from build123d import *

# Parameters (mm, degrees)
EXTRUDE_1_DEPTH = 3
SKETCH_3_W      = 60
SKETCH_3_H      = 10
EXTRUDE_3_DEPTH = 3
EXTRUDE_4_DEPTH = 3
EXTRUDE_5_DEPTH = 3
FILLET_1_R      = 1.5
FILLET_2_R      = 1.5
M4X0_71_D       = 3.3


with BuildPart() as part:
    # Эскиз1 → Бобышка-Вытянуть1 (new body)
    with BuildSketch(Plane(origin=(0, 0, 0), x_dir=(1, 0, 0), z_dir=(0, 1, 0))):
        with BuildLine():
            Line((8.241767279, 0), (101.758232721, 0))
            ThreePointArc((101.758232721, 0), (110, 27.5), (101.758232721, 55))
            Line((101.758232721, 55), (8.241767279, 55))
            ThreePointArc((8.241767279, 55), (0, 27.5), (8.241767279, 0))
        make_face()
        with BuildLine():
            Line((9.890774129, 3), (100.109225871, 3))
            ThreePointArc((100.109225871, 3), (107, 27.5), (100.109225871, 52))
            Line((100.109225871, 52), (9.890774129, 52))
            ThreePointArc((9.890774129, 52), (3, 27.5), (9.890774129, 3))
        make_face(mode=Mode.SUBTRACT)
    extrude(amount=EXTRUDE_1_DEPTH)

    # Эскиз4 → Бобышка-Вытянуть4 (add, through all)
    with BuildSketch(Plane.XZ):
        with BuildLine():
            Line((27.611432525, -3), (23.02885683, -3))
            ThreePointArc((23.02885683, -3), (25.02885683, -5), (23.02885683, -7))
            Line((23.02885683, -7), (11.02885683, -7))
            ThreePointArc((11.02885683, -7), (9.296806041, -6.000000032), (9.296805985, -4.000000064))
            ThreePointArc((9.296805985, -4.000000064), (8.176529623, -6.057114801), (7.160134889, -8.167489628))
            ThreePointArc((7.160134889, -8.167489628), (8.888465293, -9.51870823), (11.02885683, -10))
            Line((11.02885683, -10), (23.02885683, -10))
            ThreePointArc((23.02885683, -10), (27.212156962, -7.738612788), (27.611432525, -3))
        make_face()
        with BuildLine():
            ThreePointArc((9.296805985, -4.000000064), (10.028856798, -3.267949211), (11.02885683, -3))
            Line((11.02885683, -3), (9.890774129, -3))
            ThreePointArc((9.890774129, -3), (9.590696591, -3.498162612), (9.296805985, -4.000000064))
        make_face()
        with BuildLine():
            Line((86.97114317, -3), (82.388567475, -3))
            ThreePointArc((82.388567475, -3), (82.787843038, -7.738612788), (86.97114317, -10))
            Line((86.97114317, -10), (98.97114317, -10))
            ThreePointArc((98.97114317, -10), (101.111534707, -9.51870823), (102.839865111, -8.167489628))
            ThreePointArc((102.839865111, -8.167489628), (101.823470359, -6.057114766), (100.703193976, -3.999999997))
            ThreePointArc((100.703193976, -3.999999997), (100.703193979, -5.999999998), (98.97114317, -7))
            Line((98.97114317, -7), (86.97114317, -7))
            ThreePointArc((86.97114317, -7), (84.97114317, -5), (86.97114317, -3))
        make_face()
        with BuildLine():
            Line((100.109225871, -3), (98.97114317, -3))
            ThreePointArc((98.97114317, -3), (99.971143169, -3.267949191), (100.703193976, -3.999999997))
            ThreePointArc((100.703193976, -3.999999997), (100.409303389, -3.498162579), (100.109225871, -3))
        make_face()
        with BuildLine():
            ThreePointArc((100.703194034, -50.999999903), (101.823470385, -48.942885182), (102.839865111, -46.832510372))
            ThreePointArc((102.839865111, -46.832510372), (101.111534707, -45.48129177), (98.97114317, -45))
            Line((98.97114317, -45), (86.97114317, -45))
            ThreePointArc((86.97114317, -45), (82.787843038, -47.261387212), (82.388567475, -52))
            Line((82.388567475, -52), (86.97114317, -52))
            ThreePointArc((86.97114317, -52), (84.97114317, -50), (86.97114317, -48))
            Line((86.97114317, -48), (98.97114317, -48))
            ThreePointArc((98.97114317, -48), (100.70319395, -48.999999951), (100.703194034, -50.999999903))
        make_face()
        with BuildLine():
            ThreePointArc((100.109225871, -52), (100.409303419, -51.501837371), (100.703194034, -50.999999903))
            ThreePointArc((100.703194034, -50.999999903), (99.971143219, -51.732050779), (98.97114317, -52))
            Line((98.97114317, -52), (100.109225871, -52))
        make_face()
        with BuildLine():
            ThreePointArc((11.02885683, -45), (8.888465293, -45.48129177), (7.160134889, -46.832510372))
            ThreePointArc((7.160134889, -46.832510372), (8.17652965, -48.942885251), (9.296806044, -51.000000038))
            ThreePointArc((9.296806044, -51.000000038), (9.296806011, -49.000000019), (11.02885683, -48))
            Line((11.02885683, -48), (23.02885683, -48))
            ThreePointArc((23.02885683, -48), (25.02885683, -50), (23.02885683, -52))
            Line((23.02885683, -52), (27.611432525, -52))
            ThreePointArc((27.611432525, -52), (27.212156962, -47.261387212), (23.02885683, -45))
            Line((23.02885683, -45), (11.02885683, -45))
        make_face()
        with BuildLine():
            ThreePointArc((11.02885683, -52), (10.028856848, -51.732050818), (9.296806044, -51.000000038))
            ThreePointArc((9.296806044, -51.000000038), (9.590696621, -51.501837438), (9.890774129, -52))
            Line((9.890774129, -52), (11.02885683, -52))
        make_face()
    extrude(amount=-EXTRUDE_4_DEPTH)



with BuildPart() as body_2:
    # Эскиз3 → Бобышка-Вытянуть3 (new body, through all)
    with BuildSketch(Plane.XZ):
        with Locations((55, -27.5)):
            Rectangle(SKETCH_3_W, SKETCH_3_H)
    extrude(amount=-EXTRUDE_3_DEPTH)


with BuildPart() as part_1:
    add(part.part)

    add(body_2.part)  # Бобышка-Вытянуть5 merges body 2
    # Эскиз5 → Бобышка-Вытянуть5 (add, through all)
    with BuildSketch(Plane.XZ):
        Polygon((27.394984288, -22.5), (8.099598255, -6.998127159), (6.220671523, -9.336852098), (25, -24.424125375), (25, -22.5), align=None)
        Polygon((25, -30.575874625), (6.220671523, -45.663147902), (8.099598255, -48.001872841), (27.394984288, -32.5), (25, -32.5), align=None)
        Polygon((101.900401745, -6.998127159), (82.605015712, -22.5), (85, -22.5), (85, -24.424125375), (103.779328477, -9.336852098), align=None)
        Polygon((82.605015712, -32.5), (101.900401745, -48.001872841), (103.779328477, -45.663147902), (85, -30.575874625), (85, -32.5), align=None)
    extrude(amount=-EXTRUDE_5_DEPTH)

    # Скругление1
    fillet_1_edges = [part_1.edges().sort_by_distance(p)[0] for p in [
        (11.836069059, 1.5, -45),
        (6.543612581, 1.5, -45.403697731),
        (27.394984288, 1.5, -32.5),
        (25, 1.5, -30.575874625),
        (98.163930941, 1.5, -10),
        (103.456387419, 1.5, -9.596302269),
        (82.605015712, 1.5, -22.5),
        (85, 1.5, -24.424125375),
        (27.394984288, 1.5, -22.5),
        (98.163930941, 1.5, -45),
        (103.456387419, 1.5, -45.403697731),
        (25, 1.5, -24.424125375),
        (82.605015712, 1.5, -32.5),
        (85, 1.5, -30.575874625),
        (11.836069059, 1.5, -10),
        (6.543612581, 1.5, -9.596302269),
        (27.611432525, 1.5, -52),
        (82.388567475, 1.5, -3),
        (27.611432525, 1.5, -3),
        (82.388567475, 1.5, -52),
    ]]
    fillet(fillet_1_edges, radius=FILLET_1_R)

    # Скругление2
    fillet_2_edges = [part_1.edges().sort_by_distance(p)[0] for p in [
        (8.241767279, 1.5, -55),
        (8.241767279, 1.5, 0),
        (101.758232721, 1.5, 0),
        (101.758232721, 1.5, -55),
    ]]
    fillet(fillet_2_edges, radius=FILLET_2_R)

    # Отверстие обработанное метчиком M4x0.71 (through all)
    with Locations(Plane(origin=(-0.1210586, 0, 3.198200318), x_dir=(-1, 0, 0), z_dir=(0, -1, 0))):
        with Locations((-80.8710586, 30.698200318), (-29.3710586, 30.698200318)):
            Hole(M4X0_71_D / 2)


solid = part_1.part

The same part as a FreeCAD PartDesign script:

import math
import FreeCAD as App
import Part
import Sketcher

V = App.Vector


def edges_at(feature, points):
    """Names of the edges that pass closest to the given points."""
    edges = feature.Shape.Edges
    near = lambda p: min(range(len(edges)), key=lambda i: edges[i].distToShape(Part.Vertex(*p))[0])
    return sorted({f"Edge{near(p) + 1}" for p in points})

doc = App.newDocument("Part")
body = doc.addObject("PartDesign::Body", "Body")

sketch1 = body.newObject("Sketcher::SketchObject", "Sketch")
sketch1.AttachmentSupport = (doc.getObject("XZ_Plane"), [""])
sketch1.MapMode = "FlatFace"
sketch1.addGeometry([
    Part.LineSegment(V(8, 0, 0), V(102, 0, 0)),
    Part.ArcOfCircle(Part.Circle(V(60, -28, 0), V(0, 0, 1), 50), math.radians(-33), math.radians(33)),
    Part.LineSegment(V(102, -55, 0), V(8, -55, 0)),
    Part.ArcOfCircle(Part.Circle(V(50, -28, 0), V(0, 0, 1), 50), math.radians(147), math.radians(213)),
    Part.LineSegment(V(100, -3, 0), V(10, -3, 0)),
    Part.ArcOfCircle(Part.Circle(V(50, -28, 0), V(0, 0, 1), 47), math.radians(149), math.radians(211)),
    Part.LineSegment(V(10, -52, 0), V(100, -52, 0)),
    Part.ArcOfCircle(Part.Circle(V(60, -28, 0), V(0, 0, 1), 47), math.radians(-31), math.radians(31)),
], False)
sketch1.addConstraint([
    Sketcher.Constraint("Coincident", 0, 2, 1, 2),
    Sketcher.Constraint("Coincident", 1, 1, 2, 1),
    Sketcher.Constraint("Coincident", 2, 2, 3, 2),
    Sketcher.Constraint("Coincident", 3, 1, 0, 1),
    Sketcher.Constraint("Coincident", 4, 2, 5, 1),
    Sketcher.Constraint("Coincident", 5, 2, 6, 1),
    Sketcher.Constraint("Coincident", 6, 2, 7, 1),
    Sketcher.Constraint("Coincident", 7, 2, 4, 1),
    Sketcher.Constraint("Horizontal", 0),
    Sketcher.Constraint("Horizontal", 2),
    Sketcher.Constraint("Horizontal", 4),
    Sketcher.Constraint("Horizontal", 6),
    Sketcher.Constraint("Coincident", 5, 3, 3, 3),
    Sketcher.Constraint("Coincident", 7, 3, 1, 3),
    Sketcher.Constraint("Equal", 1, 3),
    Sketcher.Constraint("Equal", 5, 7),
    Sketcher.Constraint("PointOnObject", 0, 2, -1),
    Sketcher.Constraint("Horizontal", 1, 3, 3, 3),
    Sketcher.Constraint("Vertical", 0, 2, 1, 1),
    Sketcher.Constraint("Vertical", 4, 2, 5, 2),
    Sketcher.Constraint("Radius", 1, 50.0),
    Sketcher.Constraint("Radius", 5, 47.0),
    Sketcher.Constraint("DistanceX", -1, 1, 1, 3, 60.0),
    Sketcher.Constraint("DistanceX", -1, 1, 3, 3, 50.0),
    Sketcher.Constraint("DistanceY", 1, 1, -1, 1, 55.0),
    Sketcher.Constraint("DistanceY", 4, 2, -1, 1, 3.0),
])
pad1 = body.newObject("PartDesign::Pad", "Pad")
pad1.Profile = sketch1
pad1.Length = 3
pad1.Reversed = True

sketch2 = body.newObject("Sketcher::SketchObject", "Sketch001")
sketch2.AttachmentSupport = (doc.getObject("XZ_Plane"), [""])
sketch2.MapMode = "FlatFace"
sketch2.addGeometry([
    Part.LineSegment(V(27.6, -3, 0), V(23, -3, 0)),
    Part.ArcOfCircle(Part.Circle(V(23, -5, 0), V(0, 0, 1), 2), math.radians(-90), math.radians(90)),
    Part.LineSegment(V(23, -7, 0), V(11, -7, 0)),
    Part.ArcOfCircle(Part.Circle(V(11, -5, 0), V(0, 0, 1), 2), math.radians(150), math.radians(270)),
    Part.ArcOfCircle(Part.Circle(V(50, -27.5, 0), V(0, 0, 1), 47), math.radians(150), math.radians(155.71)),
    Part.ArcOfCircle(Part.Circle(V(11, -5, 0), V(0, 0, 1), 5), math.radians(-141), math.radians(-90)),
    Part.LineSegment(V(11, -10, 0), V(23, -10, 0)),
    Part.ArcOfCircle(Part.Circle(V(23, -5, 0), V(0, 0, 1), 5), math.radians(-90), math.radians(24)),
    Part.ArcOfCircle(Part.Circle(V(11, -5, 0), V(0, 0, 1), 2), math.radians(90), math.radians(150)),
    Part.LineSegment(V(11, -3, 0), V(9.9, -3, 0)),
    Part.ArcOfCircle(Part.Circle(V(50, -27.5, 0), V(0, 0, 1), 47), math.radians(148.58), math.radians(150)),
    Part.LineSegment(V(87, -3, 0), V(82.4, -3, 0)),
    Part.ArcOfCircle(Part.Circle(V(87, -5, 0), V(0, 0, 1), 5), math.radians(156), math.radians(270)),
    Part.LineSegment(V(87, -10, 0), V(99, -10, 0)),
    Part.ArcOfCircle(Part.Circle(V(99, -5, 0), V(0, 0, 1), 5), math.radians(-90), math.radians(-39)),
    Part.ArcOfCircle(Part.Circle(V(60, -27.5, 0), V(0, 0, 1), 47), math.radians(24.29), math.radians(30)),
    Part.ArcOfCircle(Part.Circle(V(99, -5, 0), V(0, 0, 1), 2), math.radians(-90), math.radians(30)),
    Part.LineSegment(V(99, -7, 0), V(87, -7, 0)),
    Part.ArcOfCircle(Part.Circle(V(87, -5, 0), V(0, 0, 1), 2), math.radians(90), math.radians(270)),
    Part.LineSegment(V(100.1, -3, 0), V(99, -3, 0)),
    Part.ArcOfCircle(Part.Circle(V(99, -5, 0), V(0, 0, 1), 2), math.radians(30), math.radians(90)),
    Part.ArcOfCircle(Part.Circle(V(60, -27.5, 0), V(0, 0, 1), 47), math.radians(30), math.radians(31.42)),
    Part.ArcOfCircle(Part.Circle(V(60, -27.5, 0), V(0, 0, 1), 47), math.radians(-30), math.radians(-24.29)),
    Part.ArcOfCircle(Part.Circle(V(99, -50, 0), V(0, 0, 1), 5), math.radians(39), math.radians(90)),
    Part.LineSegment(V(99, -45, 0), V(87, -45, 0)),
    Part.ArcOfCircle(Part.Circle(V(87, -50, 0), V(0, 0, 1), 5), math.radians(90), math.radians(204)),
    Part.LineSegment(V(82.4, -52, 0), V(87, -52, 0)),
    Part.ArcOfCircle(Part.Circle(V(87, -50, 0), V(0, 0, 1), 2), math.radians(90), math.radians(270)),
    Part.LineSegment(V(87, -48, 0), V(99, -48, 0)),
    Part.ArcOfCircle(Part.Circle(V(99, -50, 0), V(0, 0, 1), 2), math.radians(-30), math.radians(90)),
    Part.ArcOfCircle(Part.Circle(V(60, -27.5, 0), V(0, 0, 1), 47), math.radians(-31.42), math.radians(-30)),
    Part.ArcOfCircle(Part.Circle(V(99, -50, 0), V(0, 0, 1), 2), math.radians(-90), math.radians(-30)),
    Part.LineSegment(V(99, -52, 0), V(100.1, -52, 0)),
    Part.ArcOfCircle(Part.Circle(V(11, -50, 0), V(0, 0, 1), 5), math.radians(90), math.radians(141)),
    Part.ArcOfCircle(Part.Circle(V(50, -27.5, 0), V(0, 0, 1), 47), math.radians(-155.71), math.radians(-150)),
    Part.ArcOfCircle(Part.Circle(V(11, -50, 0), V(0, 0, 1), 2), math.radians(90), math.radians(210)),
    Part.LineSegment(V(11, -48, 0), V(23, -48, 0)),
    Part.ArcOfCircle(Part.Circle(V(23, -50, 0), V(0, 0, 1), 2), math.radians(-90), math.radians(90)),
    Part.LineSegment(V(23, -52, 0), V(27.6, -52, 0)),
    Part.ArcOfCircle(Part.Circle(V(23, -50, 0), V(0, 0, 1), 5), math.radians(-24), math.radians(90)),
    Part.LineSegment(V(23, -45, 0), V(11, -45, 0)),
    Part.ArcOfCircle(Part.Circle(V(11, -50, 0), V(0, 0, 1), 2), math.radians(-150), math.radians(-90)),
    Part.ArcOfCircle(Part.Circle(V(50, -27.5, 0), V(0, 0, 1), 47), math.radians(-150), math.radians(-148.58)),
    Part.LineSegment(V(9.9, -52, 0), V(11, -52, 0)),
], False)
sketch2.addConstraint([
    Sketcher.Constraint("Tangent", 0, 2, 1, 2),
    Sketcher.Constraint("Tangent", 1, 1, 2, 1),
    Sketcher.Constraint("Tangent", 2, 2, 3, 2),
    Sketcher.Constraint("Tangent", 3, 1, 4, 1),
    Sketcher.Constraint("Coincident", 4, 2, 5, 1),
    Sketcher.Constraint("Tangent", 5, 2, 6, 1),
    Sketcher.Constraint("Tangent", 6, 2, 7, 1),
    Sketcher.Constraint("Coincident", 7, 2, 0, 1),
    Sketcher.Constraint("Tangent", 8, 1, 9, 1),
    Sketcher.Constraint("Coincident", 9, 2, 10, 1),
    Sketcher.Constraint("Tangent", 10, 2, 8, 2),
    Sketcher.Constraint("Coincident", 11, 2, 12, 1),
    Sketcher.Constraint("Tangent", 12, 2, 13, 1),
    Sketcher.Constraint("Tangent", 13, 2, 14, 1),
    Sketcher.Constraint("Coincident", 14, 2, 15, 1),
    Sketcher.Constraint("Tangent", 15, 2, 16, 2),
    Sketcher.Constraint("Tangent", 16, 1, 17, 1),
    Sketcher.Constraint("Tangent", 17, 2, 18, 2),
    Sketcher.Constraint("Tangent", 18, 1, 11, 1),
    Sketcher.Constraint("Tangent", 19, 2, 20, 2),
    Sketcher.Constraint("Tangent", 20, 1, 21, 1),
    Sketcher.Constraint("Coincident", 21, 2, 19, 1),
    Sketcher.Constraint("Coincident", 22, 2, 23, 1),
    Sketcher.Constraint("Tangent", 23, 2, 24, 1),
    Sketcher.Constraint("Tangent", 24, 2, 25, 1),
    Sketcher.Constraint("Coincident", 25, 2, 26, 1),
    Sketcher.Constraint("Tangent", 26, 2, 27, 2),
    Sketcher.Constraint("Tangent", 27, 1, 28, 1),
    Sketcher.Constraint("Tangent", 28, 2, 29, 2),
    Sketcher.Constraint("Tangent", 29, 1, 22, 1),
    Sketcher.Constraint("Tangent", 30, 2, 31, 2),
    Sketcher.Constraint("Tangent", 31, 1, 32, 1),
    Sketcher.Constraint("Coincident", 32, 2, 30, 1),
    Sketcher.Constraint("Coincident", 33, 2, 34, 1),
    Sketcher.Constraint("Tangent", 34, 2, 35, 2),
    Sketcher.Constraint("Tangent", 35, 1, 36, 1),
    Sketcher.Constraint("Tangent", 36, 2, 37, 2),
    Sketcher.Constraint("Tangent", 37, 1, 38, 1),
    Sketcher.Constraint("Coincident", 38, 2, 39, 1),
    Sketcher.Constraint("Tangent", 39, 2, 40, 1),
    Sketcher.Constraint("Tangent", 40, 2, 33, 1),
    Sketcher.Constraint("Tangent", 41, 1, 42, 1),
    Sketcher.Constraint("Coincident", 42, 2, 43, 1),
    Sketcher.Constraint("Tangent", 43, 2, 41, 2),
    Sketcher.Constraint("Horizontal", 0),
    Sketcher.Constraint("Horizontal", 2),
    Sketcher.Constraint("Horizontal", 6),
    Sketcher.Constraint("Horizontal", 9),
    Sketcher.Constraint("Horizontal", 11),
    Sketcher.Constraint("Horizontal", 13),
    Sketcher.Constraint("Horizontal", 17),
    Sketcher.Constraint("Horizontal", 19),
    Sketcher.Constraint("Horizontal", 24),
    Sketcher.Constraint("Horizontal", 26),
    Sketcher.Constraint("Horizontal", 28),
    Sketcher.Constraint("Horizontal", 32),
    Sketcher.Constraint("Horizontal", 36),
    Sketcher.Constraint("Horizontal", 38),
    Sketcher.Constraint("Horizontal", 40),
    Sketcher.Constraint("Horizontal", 43),
    Sketcher.Constraint("Coincident", 5, 3, 3, 3),
    Sketcher.Constraint("Coincident", 7, 3, 1, 3),
    Sketcher.Constraint("Coincident", 8, 3, 3, 3),
    Sketcher.Constraint("Coincident", 10, 3, 4, 3),
    Sketcher.Constraint("Coincident", 16, 3, 14, 3),
    Sketcher.Constraint("Coincident", 18, 3, 12, 3),
    Sketcher.Constraint("Coincident", 20, 3, 14, 3),
    Sketcher.Constraint("Coincident", 21, 3, 15, 3),
    Sketcher.Constraint("Coincident", 22, 3, 15, 3),
    Sketcher.Constraint("Coincident", 27, 3, 25, 3),
    Sketcher.Constraint("Coincident", 29, 3, 23, 3),
    Sketcher.Constraint("Coincident", 30, 3, 15, 3),
    Sketcher.Constraint("Coincident", 31, 3, 23, 3),
    Sketcher.Constraint("Coincident", 34, 3, 4, 3),
    Sketcher.Constraint("Coincident", 35, 3, 33, 3),
    Sketcher.Constraint("Coincident", 39, 3, 37, 3),
    Sketcher.Constraint("Coincident", 41, 3, 33, 3),
    Sketcher.Constraint("Coincident", 42, 3, 4, 3),
    Sketcher.Constraint("Equal", 1, 3),
    Sketcher.Constraint("Equal", 3, 8),
    Sketcher.Constraint("Equal", 7, 12),
    Sketcher.Constraint("Equal", 12, 14),
    Sketcher.Constraint("Equal", 10, 15),
    Sketcher.Constraint("Equal", 8, 16),
    Sketcher.Constraint("Equal", 18, 20),
    Sketcher.Constraint("Equal", 21, 22),
    Sketcher.Constraint("Equal", 14, 23),
    Sketcher.Constraint("Equal", 23, 25),
    Sketcher.Constraint("Equal", 20, 27),
    Sketcher.Constraint("Equal", 22, 30),
    Sketcher.Constraint("Equal", 25, 33),
    Sketcher.Constraint("Equal", 30, 34),
    Sketcher.Constraint("Equal", 31, 35),
    Sketcher.Constraint("Equal", 35, 37),
    Sketcher.Constraint("Equal", 37, 41),
    Sketcher.Constraint("Horizontal", 8, 3, 12, 3),
    Sketcher.Constraint("Horizontal", 10, 3, 15, 3),
    Sketcher.Constraint("Horizontal", 31, 3, 33, 3),
    Sketcher.Constraint("Vertical", 20, 3, 23, 3),
    Sketcher.Constraint("Vertical", 18, 3, 25, 3),
    Sketcher.Constraint("Vertical", 7, 3, 37, 3),
    Sketcher.Constraint("Equal", 6, 13),
    Sketcher.Constraint("Radius", 1, 2.0),
    Sketcher.Constraint("Radius", 4, 47.0),
    Sketcher.Constraint("Radius", 5, 5.0),
    Sketcher.Constraint("DistanceX", 2, 2, 2, 1, 12.0),
    Sketcher.Constraint("DistanceY", 1, 3, -1, 1, 5.0),
    Sketcher.Constraint("DistanceX", -1, 1, 4, 3, 50.0),
    Sketcher.Constraint("DistanceX", -1, 1, 15, 3, 60.0),
    Sketcher.Constraint("DistanceY", 23, 3, -1, 1, 50.0),
])
pad2 = body.newObject("PartDesign::Pad", "Pad001")
pad2.Profile = sketch2
pad2.Length = 3
pad2.Reversed = True
body2 = doc.addObject("PartDesign::Body", "Body001")

sketch3 = body2.newObject("Sketcher::SketchObject", "Sketch002")
sketch3.AttachmentSupport = (doc.getObject("XZ_Plane001"), [""])
sketch3.MapMode = "FlatFace"
sketch3.addGeometry([
    Part.LineSegment(V(25, -22, 0), V(25, -32, 0)),
    Part.LineSegment(V(25, -32, 0), V(85, -32, 0)),
    Part.LineSegment(V(85, -32, 0), V(85, -22, 0)),
    Part.LineSegment(V(85, -22, 0), V(25, -22, 0)),
], False)
sketch3.addConstraint([
    Sketcher.Constraint("Coincident", 0, 2, 1, 1),
    Sketcher.Constraint("Coincident", 1, 2, 2, 1),
    Sketcher.Constraint("Coincident", 2, 2, 3, 1),
    Sketcher.Constraint("Coincident", 3, 2, 0, 1),
    Sketcher.Constraint("Vertical", 0),
    Sketcher.Constraint("Horizontal", 1),
    Sketcher.Constraint("Vertical", 2),
    Sketcher.Constraint("Horizontal", 3),
    Sketcher.Constraint("DistanceX", 1, 1, 1, 2, 60.0),
    Sketcher.Constraint("DistanceY", 0, 2, 0, 1, 10.0),
    Sketcher.Constraint("DistanceX", -1, 1, 0, 2, 25.0),
    Sketcher.Constraint("DistanceY", 0, 2, -1, 1, 32.5),
])
pad3 = body2.newObject("PartDesign::Pad", "Pad002")
pad3.Profile = sketch3
pad3.Length = 3
pad3.Reversed = True
body.AllowCompound = True
doc.recompute()

boolean = body.newObject("PartDesign::Boolean", "Boolean")
boolean.Type = "Fuse"
boolean.addObjects([body2])

sketch4 = body.newObject("Sketcher::SketchObject", "Sketch003")
sketch4.AttachmentSupport = (doc.getObject("XZ_Plane"), [""])
sketch4.MapMode = "FlatFace"
sketch4.addGeometry([
    Part.LineSegment(V(27.4, -22.5, 0), V(8.1, -7, 0)),
    Part.LineSegment(V(8.1, -7, 0), V(6.2, -9.3, 0)),
    Part.LineSegment(V(6.2, -9.3, 0), V(25, -24.4, 0)),
    Part.LineSegment(V(25, -24.4, 0), V(25, -22.5, 0)),
    Part.LineSegment(V(25, -22.5, 0), V(27.4, -22.5, 0)),
    Part.LineSegment(V(25, -30.6, 0), V(6.2, -45.7, 0)),
    Part.LineSegment(V(6.2, -45.7, 0), V(8.1, -48, 0)),
    Part.LineSegment(V(8.1, -48, 0), V(27.4, -32.5, 0)),
    Part.LineSegment(V(27.4, -32.5, 0), V(25, -32.5, 0)),
    Part.LineSegment(V(25, -32.5, 0), V(25, -30.6, 0)),
    Part.LineSegment(V(101.9, -7, 0), V(82.6, -22.5, 0)),
    Part.LineSegment(V(82.6, -22.5, 0), V(85, -22.5, 0)),
    Part.LineSegment(V(85, -22.5, 0), V(85, -24.4, 0)),
    Part.LineSegment(V(85, -24.4, 0), V(103.8, -9.3, 0)),
    Part.LineSegment(V(103.8, -9.3, 0), V(101.9, -7, 0)),
    Part.LineSegment(V(82.6, -32.5, 0), V(101.9, -48, 0)),
    Part.LineSegment(V(101.9, -48, 0), V(103.8, -45.7, 0)),
    Part.LineSegment(V(103.8, -45.7, 0), V(85, -30.6, 0)),
    Part.LineSegment(V(85, -30.6, 0), V(85, -32.5, 0)),
    Part.LineSegment(V(85, -32.5, 0), V(82.6, -32.5, 0)),
], False)
sketch4.addConstraint([
    Sketcher.Constraint("Coincident", 0, 2, 1, 1),
    Sketcher.Constraint("Coincident", 1, 2, 2, 1),
    Sketcher.Constraint("Coincident", 2, 2, 3, 1),
    Sketcher.Constraint("Coincident", 3, 2, 4, 1),
    Sketcher.Constraint("Coincident", 4, 2, 0, 1),
    Sketcher.Constraint("Coincident", 5, 2, 6, 1),
    Sketcher.Constraint("Coincident", 6, 2, 7, 1),
    Sketcher.Constraint("Coincident", 7, 2, 8, 1),
    Sketcher.Constraint("Coincident", 8, 2, 9, 1),
    Sketcher.Constraint("Coincident", 9, 2, 5, 1),
    Sketcher.Constraint("Coincident", 10, 2, 11, 1),
    Sketcher.Constraint("Coincident", 11, 2, 12, 1),
    Sketcher.Constraint("Coincident", 12, 2, 13, 1),
    Sketcher.Constraint("Coincident", 13, 2, 14, 1),
    Sketcher.Constraint("Coincident", 14, 2, 10, 1),
    Sketcher.Constraint("Coincident", 15, 2, 16, 1),
    Sketcher.Constraint("Coincident", 16, 2, 17, 1),
    Sketcher.Constraint("Coincident", 17, 2, 18, 1),
    Sketcher.Constraint("Coincident", 18, 2, 19, 1),
    Sketcher.Constraint("Coincident", 19, 2, 15, 1),
    Sketcher.Constraint("Vertical", 3),
    Sketcher.Constraint("Horizontal", 4),
    Sketcher.Constraint("Horizontal", 8),
    Sketcher.Constraint("Vertical", 9),
    Sketcher.Constraint("Horizontal", 11),
    Sketcher.Constraint("Vertical", 12),
    Sketcher.Constraint("Vertical", 18),
    Sketcher.Constraint("Horizontal", 19),
    Sketcher.Constraint("Perpendicular", 0, 1),
    Sketcher.Constraint("Perpendicular", 1, 2),
    Sketcher.Constraint("Perpendicular", 5, 6),
    Sketcher.Constraint("Perpendicular", 6, 7),
    Sketcher.Constraint("Parallel", 7, 10),
    Sketcher.Constraint("Parallel", 10, 13),
    Sketcher.Constraint("Perpendicular", 13, 14),
    Sketcher.Constraint("Parallel", 2, 15),
    Sketcher.Constraint("Perpendicular", 15, 16),
    Sketcher.Constraint("Perpendicular", 16, 17),
    Sketcher.Constraint("Horizontal", 4, 2, 10, 2),
    Sketcher.Constraint("Horizontal", 2, 2, 12, 2),
    Sketcher.Constraint("Horizontal", 1, 2, 13, 2),
    Sketcher.Constraint("Horizontal", 0, 2, 14, 2),
    Sketcher.Constraint("Horizontal", 6, 2, 15, 2),
    Sketcher.Constraint("Horizontal", 5, 2, 16, 2),
    Sketcher.Constraint("Horizontal", 9, 2, 17, 2),
    Sketcher.Constraint("Horizontal", 8, 2, 18, 2),
    Sketcher.Constraint("Vertical", 1, 2, 5, 2),
    Sketcher.Constraint("Vertical", 0, 2, 6, 2),
    Sketcher.Constraint("Vertical", 4, 2, 7, 2),
    Sketcher.Constraint("Vertical", 3, 2, 8, 2),
    Sketcher.Constraint("Vertical", 14, 2, 15, 2),
    Sketcher.Constraint("Vertical", 13, 2, 16, 2),
    Sketcher.Constraint("Distance", 1, 3.0),
    Sketcher.Constraint("DistanceX", -1, 1, 2, 2, 25.0),
    Sketcher.Constraint("DistanceX", -1, 1, 11, 2, 85.0),
    Sketcher.Constraint("DistanceY", 7, 2, 4, 2, 10.0),
    Sketcher.Constraint("DistanceY", 3, 2, -1, 1, 22.5),
    Sketcher.Constraint("DistanceY", 2, 2, 0, 2, 17.425998),
    Sketcher.Constraint("DistanceX", -1, 1, 0, 2, 8.099598),
    Sketcher.Constraint("Distance", 0, 24.751161),
])
pad4 = body.newObject("PartDesign::Pad", "Pad003")
pad4.Profile = sketch4
pad4.Type = "UpToLast"
pad4.Reversed = True
doc.recompute()

fillet = body.newObject("PartDesign::Fillet", "Fillet")
fillet.Base = (pad4, edges_at(pad4, [
    (11.836, 1.5, -45),
    (6.544, 1.5, -45.404),
    (27.395, 1.5, -32.5),
    (25, 1.5, -30.576),
    (98.164, 1.5, -10),
    (103.456, 1.5, -9.596),
    (82.605, 1.5, -22.5),
    (85, 1.5, -24.424),
    (27.395, 1.5, -22.5),
    (98.164, 1.5, -45),
    (103.456, 1.5, -45.404),
    (25, 1.5, -24.424),
    (82.605, 1.5, -32.5),
    (85, 1.5, -30.576),
    (11.836, 1.5, -10),
    (6.544, 1.5, -9.596),
    (27.611, 1.5, -52),
    (82.389, 1.5, -3),
    (27.611, 1.5, -3),
    (82.389, 1.5, -52),
]))
fillet.Radius = 1.5
doc.recompute()

fillet2 = body.newObject("PartDesign::Fillet", "Fillet001")
fillet2.Base = (fillet, edges_at(fillet, [
    (8.242, 1.5, -55),
    (8.242, 1.5, 0),
    (101.758, 1.5, 0),
    (101.758, 1.5, -55),
]))
fillet2.Radius = 1.5

sketch5 = body.newObject("Sketcher::SketchObject", "Sketch004")
sketch5.AttachmentSupport = (doc.getObject("XZ_Plane"), [""])
sketch5.MapMode = "FlatFace"
sketch5.addGeometry([
    Part.Circle(V(80.8, -27.5, 0), V(0, 0, 1), 1.6),
    Part.Circle(V(29.2, -27.5, 0), V(0, 0, 1), 1.6),
], False)
sketch5.addConstraint([
    Sketcher.Constraint("Equal", 0, 1),
    Sketcher.Constraint("Horizontal", 0, 3, 1, 3),
    Sketcher.Constraint("Diameter", 0, 3.3),
    Sketcher.Constraint("DistanceY", 0, 3, -1, 1, 27.5),
    Sketcher.Constraint("DistanceX", 1, 3, 0, 3, 51.5),
    Sketcher.Constraint("DistanceX", -1, 1, 0, 3, 80.75),
])
doc.recompute()
hole = body.newObject("PartDesign::Hole", "Hole")
hole.Profile = sketch5
hole.ThreadType = "None"
hole.Diameter = 3.3
hole.DepthType = "ThroughAll"

doc.recompute()
